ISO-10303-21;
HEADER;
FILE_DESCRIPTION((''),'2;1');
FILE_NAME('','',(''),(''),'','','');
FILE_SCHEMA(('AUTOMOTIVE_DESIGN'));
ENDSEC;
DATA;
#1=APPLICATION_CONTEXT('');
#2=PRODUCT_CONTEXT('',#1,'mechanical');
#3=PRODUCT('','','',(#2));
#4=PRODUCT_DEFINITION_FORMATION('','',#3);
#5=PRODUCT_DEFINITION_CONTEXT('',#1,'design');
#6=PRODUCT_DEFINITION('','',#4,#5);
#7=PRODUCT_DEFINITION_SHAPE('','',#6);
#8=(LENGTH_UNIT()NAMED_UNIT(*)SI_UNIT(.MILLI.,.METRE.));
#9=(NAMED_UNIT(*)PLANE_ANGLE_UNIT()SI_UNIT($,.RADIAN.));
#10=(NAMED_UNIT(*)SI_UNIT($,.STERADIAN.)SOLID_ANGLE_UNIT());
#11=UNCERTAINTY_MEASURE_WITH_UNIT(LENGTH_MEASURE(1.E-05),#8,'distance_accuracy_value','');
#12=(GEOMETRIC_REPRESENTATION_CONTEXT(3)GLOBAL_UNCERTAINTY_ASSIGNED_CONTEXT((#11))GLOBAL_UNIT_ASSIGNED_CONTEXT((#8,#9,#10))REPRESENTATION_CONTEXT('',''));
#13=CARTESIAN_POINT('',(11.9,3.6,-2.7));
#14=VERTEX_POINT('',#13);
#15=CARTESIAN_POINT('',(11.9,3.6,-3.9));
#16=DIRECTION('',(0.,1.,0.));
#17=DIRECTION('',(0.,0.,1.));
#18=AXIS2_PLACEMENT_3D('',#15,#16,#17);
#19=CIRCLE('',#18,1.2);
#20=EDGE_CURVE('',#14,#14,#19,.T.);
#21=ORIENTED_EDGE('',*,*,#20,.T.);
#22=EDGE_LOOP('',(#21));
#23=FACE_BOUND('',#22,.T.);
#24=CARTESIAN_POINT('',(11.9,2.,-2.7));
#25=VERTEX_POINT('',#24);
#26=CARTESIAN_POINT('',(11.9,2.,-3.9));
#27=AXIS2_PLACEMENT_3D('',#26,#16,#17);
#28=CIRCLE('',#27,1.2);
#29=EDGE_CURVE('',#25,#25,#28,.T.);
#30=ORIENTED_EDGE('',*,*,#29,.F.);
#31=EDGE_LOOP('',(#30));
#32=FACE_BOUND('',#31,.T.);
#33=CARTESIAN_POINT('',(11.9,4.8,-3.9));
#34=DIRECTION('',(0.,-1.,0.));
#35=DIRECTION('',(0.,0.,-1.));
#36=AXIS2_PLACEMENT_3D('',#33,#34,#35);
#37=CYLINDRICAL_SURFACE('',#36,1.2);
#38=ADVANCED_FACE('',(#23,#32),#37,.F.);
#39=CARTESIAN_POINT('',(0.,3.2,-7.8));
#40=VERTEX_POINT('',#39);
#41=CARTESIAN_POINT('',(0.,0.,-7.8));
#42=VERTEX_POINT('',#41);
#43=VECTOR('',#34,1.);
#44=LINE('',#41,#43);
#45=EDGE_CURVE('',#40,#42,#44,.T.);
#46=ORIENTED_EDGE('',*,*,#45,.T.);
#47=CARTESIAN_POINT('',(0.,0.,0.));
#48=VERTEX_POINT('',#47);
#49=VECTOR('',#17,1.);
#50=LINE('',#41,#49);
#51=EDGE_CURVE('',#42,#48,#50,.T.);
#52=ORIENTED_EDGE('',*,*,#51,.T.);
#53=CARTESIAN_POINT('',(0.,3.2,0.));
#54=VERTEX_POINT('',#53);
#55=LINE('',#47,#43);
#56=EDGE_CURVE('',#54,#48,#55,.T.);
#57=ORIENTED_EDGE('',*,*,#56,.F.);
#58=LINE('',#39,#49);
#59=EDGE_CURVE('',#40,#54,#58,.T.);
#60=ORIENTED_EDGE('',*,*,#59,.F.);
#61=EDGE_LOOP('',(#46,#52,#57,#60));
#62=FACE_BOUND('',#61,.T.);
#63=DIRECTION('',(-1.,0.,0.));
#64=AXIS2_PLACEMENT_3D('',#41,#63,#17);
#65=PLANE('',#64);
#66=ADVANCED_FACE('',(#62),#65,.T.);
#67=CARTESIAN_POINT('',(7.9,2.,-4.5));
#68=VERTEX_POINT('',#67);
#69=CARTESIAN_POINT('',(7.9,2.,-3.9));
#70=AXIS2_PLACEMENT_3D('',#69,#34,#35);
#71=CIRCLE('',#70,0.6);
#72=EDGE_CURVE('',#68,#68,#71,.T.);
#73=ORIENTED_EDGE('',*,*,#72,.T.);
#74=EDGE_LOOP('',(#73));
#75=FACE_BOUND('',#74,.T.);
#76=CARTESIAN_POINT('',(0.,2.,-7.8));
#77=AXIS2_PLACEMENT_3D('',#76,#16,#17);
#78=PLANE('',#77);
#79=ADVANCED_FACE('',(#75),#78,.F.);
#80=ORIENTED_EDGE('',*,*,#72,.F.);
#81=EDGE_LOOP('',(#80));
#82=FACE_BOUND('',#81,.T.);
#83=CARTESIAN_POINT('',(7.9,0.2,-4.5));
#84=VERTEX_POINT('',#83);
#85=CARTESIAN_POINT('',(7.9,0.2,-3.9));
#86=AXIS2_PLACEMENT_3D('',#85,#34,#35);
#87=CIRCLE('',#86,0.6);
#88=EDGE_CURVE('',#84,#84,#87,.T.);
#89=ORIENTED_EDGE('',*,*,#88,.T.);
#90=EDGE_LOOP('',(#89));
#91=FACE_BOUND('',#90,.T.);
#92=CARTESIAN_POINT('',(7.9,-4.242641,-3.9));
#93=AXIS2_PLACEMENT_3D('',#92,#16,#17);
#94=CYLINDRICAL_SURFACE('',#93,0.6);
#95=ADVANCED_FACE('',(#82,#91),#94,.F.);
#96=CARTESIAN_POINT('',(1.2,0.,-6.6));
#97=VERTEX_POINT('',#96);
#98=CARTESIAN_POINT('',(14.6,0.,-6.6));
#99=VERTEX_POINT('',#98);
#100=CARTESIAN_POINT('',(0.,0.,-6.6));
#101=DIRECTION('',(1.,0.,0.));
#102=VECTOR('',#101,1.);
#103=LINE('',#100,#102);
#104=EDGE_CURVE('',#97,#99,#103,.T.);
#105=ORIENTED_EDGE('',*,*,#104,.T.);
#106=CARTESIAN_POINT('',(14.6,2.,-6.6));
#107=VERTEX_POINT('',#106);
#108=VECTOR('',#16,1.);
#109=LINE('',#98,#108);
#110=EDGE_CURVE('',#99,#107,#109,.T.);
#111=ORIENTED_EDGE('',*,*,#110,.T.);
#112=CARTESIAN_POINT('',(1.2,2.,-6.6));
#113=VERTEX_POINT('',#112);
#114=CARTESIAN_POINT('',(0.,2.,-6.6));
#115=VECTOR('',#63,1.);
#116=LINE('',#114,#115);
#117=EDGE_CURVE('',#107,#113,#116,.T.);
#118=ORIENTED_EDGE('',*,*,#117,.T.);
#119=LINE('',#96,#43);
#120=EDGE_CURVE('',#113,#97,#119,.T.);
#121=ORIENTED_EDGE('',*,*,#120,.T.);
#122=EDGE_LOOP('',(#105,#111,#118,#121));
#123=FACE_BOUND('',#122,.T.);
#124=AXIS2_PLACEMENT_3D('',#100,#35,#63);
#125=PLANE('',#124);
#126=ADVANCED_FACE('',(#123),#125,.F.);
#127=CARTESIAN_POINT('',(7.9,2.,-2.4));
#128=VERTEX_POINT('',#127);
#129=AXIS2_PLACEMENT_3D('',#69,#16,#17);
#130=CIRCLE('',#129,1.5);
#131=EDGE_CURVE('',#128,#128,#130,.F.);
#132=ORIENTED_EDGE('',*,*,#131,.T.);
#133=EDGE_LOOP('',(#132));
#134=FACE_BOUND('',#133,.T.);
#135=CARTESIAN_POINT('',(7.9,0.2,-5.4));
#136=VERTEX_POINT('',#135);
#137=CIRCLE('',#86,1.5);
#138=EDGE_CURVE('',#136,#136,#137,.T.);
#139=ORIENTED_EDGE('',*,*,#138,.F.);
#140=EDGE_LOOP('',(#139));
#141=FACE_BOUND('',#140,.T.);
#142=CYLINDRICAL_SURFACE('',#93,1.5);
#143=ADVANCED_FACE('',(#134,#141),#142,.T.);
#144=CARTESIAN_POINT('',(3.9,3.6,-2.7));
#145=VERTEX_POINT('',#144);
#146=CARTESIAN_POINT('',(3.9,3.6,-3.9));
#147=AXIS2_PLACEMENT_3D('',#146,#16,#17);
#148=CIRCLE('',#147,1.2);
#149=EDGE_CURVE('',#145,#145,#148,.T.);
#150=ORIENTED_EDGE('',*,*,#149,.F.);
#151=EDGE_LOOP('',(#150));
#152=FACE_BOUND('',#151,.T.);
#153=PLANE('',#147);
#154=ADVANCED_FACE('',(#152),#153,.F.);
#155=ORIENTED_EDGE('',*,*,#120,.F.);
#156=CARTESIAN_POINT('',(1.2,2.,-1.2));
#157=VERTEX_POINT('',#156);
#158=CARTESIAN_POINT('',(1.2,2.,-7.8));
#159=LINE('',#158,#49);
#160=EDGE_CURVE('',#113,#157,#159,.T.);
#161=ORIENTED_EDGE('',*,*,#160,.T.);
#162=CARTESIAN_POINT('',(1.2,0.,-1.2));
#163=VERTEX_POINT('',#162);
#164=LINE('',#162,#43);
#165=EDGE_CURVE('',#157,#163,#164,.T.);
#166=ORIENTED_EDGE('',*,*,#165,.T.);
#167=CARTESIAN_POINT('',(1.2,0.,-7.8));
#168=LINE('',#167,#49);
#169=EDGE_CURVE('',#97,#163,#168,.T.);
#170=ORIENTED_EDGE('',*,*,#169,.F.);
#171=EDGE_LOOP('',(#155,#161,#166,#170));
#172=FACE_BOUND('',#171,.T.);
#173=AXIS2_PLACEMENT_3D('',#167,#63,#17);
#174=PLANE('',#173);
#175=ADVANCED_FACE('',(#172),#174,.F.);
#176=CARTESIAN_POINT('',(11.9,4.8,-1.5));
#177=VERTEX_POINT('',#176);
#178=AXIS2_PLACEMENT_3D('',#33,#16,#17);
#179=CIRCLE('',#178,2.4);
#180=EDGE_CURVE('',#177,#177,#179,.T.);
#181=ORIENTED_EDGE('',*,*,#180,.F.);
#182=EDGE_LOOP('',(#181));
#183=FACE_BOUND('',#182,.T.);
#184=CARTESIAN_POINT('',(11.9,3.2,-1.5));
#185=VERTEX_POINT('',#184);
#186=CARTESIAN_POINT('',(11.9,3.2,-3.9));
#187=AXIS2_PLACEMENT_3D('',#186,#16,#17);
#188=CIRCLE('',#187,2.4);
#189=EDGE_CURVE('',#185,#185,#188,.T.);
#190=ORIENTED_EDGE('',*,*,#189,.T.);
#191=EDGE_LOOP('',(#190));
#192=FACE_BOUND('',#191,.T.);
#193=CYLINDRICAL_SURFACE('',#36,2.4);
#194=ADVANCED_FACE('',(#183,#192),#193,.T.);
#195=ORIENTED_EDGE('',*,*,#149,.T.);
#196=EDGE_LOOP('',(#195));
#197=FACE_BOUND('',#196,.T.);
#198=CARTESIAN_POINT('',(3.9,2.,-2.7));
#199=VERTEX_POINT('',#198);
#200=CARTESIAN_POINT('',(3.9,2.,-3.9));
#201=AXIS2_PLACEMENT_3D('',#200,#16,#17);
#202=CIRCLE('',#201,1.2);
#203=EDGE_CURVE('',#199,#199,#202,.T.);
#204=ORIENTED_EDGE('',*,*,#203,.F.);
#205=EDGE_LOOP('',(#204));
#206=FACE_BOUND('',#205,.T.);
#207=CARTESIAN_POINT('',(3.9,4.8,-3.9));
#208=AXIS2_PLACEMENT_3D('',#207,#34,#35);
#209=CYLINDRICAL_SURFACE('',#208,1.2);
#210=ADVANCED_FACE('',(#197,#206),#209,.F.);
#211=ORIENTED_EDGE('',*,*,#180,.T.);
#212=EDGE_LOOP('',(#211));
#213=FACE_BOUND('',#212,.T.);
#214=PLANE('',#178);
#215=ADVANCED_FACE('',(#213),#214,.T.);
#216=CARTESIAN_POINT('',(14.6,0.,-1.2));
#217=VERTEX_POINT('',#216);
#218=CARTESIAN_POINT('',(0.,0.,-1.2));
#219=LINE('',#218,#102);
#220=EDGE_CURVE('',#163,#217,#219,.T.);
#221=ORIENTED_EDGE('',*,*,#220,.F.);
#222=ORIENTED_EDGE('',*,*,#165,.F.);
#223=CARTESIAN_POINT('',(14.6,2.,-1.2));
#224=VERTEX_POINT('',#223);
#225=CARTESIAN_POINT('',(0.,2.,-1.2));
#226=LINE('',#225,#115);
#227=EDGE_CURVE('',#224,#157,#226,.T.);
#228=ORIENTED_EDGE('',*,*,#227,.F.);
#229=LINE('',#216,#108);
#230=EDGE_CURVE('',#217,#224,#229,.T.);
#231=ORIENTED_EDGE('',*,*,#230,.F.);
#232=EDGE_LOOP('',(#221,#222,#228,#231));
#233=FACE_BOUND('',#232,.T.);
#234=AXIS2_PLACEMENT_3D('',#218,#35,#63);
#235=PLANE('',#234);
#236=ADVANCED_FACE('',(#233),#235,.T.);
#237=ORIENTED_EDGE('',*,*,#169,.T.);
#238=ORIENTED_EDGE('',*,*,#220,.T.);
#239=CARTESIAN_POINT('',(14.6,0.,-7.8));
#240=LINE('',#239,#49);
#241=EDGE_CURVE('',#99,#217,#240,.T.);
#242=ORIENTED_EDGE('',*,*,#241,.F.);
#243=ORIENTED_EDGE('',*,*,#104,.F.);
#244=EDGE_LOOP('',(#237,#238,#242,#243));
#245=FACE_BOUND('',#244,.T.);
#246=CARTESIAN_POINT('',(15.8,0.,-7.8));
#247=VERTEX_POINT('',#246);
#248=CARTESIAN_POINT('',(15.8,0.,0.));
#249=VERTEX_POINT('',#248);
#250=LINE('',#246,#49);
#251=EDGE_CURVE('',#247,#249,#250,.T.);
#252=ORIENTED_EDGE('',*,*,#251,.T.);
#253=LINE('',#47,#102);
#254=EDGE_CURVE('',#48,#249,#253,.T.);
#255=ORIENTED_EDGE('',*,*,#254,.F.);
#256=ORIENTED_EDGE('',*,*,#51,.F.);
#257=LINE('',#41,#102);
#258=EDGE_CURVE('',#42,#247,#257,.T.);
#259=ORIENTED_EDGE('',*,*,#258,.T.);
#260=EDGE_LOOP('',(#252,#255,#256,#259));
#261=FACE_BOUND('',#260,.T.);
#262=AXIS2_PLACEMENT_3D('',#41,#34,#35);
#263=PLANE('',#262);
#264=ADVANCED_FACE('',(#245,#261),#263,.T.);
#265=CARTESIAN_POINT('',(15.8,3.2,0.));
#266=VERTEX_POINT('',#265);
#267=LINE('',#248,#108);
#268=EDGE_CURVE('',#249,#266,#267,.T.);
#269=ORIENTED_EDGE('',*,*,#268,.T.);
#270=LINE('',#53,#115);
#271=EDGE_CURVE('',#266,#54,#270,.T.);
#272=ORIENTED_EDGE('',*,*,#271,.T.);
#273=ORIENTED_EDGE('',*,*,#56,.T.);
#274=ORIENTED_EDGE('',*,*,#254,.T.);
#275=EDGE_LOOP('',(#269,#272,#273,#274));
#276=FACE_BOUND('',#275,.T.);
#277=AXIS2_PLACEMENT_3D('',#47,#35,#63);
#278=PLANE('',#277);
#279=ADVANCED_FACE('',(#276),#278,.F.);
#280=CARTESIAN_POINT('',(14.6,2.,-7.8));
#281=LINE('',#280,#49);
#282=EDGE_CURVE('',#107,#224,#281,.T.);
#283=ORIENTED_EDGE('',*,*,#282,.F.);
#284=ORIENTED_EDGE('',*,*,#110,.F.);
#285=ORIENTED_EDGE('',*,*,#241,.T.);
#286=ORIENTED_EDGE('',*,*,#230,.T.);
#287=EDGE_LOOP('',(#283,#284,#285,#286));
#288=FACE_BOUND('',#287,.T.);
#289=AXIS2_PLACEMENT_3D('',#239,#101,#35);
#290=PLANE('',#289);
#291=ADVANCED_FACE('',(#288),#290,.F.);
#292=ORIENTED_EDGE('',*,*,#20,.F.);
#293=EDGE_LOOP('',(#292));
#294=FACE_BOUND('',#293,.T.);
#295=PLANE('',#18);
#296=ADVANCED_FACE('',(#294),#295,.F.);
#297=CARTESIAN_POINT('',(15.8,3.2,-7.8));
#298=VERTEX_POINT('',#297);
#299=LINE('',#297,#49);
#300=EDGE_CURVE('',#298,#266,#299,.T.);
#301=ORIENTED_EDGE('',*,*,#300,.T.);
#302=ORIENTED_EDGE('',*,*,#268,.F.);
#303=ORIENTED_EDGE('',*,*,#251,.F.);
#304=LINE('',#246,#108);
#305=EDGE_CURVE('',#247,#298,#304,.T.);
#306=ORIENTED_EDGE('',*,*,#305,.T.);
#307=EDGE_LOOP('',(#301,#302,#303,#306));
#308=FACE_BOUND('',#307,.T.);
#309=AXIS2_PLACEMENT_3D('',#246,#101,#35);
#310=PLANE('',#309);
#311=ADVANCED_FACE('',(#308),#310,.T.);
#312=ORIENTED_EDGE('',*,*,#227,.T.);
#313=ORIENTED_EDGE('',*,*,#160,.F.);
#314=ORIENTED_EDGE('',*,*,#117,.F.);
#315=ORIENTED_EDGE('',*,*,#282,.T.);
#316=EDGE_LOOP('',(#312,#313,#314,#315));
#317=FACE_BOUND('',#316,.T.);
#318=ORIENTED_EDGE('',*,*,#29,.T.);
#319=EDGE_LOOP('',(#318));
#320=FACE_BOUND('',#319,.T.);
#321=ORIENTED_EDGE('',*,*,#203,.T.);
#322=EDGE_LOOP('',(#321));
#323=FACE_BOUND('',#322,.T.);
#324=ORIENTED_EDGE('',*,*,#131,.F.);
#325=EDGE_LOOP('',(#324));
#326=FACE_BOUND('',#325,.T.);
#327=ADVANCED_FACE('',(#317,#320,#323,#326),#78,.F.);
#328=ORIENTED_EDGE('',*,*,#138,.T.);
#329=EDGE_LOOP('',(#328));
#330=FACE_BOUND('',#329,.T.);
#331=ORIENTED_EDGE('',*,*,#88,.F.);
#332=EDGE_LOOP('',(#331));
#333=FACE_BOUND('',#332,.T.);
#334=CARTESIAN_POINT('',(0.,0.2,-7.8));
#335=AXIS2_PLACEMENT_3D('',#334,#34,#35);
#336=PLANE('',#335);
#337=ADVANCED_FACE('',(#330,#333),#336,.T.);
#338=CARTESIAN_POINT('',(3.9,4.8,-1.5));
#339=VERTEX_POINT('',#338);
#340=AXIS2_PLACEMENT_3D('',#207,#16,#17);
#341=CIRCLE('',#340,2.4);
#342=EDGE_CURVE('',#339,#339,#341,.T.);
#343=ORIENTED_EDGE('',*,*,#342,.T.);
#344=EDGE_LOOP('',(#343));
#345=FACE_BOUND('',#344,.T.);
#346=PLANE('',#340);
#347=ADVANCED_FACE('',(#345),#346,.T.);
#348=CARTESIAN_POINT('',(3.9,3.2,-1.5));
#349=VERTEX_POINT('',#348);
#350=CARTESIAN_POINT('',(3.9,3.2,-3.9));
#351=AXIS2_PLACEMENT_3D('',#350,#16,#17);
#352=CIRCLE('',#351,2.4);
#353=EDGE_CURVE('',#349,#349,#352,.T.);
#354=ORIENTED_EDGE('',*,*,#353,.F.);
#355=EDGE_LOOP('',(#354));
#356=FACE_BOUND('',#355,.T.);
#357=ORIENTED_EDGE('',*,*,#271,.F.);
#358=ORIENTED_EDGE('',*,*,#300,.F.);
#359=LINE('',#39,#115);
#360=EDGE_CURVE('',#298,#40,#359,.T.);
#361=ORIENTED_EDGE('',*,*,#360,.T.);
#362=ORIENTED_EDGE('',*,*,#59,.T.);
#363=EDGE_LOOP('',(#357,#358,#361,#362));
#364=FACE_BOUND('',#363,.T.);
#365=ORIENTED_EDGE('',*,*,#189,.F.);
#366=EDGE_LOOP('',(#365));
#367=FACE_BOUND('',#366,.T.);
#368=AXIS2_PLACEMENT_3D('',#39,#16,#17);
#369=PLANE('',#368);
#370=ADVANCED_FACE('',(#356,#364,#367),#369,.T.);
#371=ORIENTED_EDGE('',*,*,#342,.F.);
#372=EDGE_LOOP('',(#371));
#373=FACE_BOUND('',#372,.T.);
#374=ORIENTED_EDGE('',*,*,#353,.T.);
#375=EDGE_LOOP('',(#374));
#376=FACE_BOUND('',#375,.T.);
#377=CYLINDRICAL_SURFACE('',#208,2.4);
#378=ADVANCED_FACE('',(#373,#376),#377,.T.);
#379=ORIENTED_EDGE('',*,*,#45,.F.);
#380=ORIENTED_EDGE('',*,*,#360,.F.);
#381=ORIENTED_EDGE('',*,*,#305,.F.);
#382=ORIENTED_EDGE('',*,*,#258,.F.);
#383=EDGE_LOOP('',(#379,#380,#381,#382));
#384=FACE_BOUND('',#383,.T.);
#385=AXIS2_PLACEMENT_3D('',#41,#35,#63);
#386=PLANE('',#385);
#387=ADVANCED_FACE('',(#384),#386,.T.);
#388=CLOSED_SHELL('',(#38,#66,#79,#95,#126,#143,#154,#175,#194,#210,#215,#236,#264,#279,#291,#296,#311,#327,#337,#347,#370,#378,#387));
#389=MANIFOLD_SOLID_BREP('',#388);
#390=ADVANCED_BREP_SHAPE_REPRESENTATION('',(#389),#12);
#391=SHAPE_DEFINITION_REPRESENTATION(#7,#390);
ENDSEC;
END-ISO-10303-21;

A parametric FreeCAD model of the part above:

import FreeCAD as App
import Part
import Sketcher
Q = App.Units.Quantity


def faces_at(feature, points):
    """Names of the faces that lie closest to the given points."""
    faces = feature.Shape.Faces
    near = lambda p: min(range(len(faces)), key=lambda i: faces[i].distToShape(Part.Vertex(*p))[0])
    return sorted({f"Face{near(p) + 1}" for p in points})

doc = App.newDocument("Part")
body = doc.addObject("PartDesign::Body", "Body")

# Sketch on XY plane
sketch1 = doc.addObject("Sketcher::SketchObject", "Sketch")
body.addObject(sketch1)
sketch1.AttachmentSupport = (doc.XY_Plane, [""])
sketch1.MapMode = "FlatFace"
sketch1.addGeometry([
    Part.LineSegment(App.Vector(0, 3.2, 0), App.Vector(0, 0, 0)),
    Part.LineSegment(App.Vector(0, 0, 0), App.Vector(15.8, 0, 0)),
    Part.LineSegment(App.Vector(15.8, 0, 0), App.Vector(15.8, 3.2, 0)),
    Part.LineSegment(App.Vector(15.8, 3.2, 0), App.Vector(0, 3.2, 0)),
], False)
sketch1.addConstraint([
    Sketcher.Constraint("Coincident", 0, 2, 1, 1),
    Sketcher.Constraint("Coincident", 1, 2, 2, 1),
    Sketcher.Constraint("Coincident", 2, 2, 3, 1),
    Sketcher.Constraint("Coincident", 3, 2, 0, 1),
    Sketcher.Constraint("Vertical", 0),
    Sketcher.Constraint("Horizontal", 1),
    Sketcher.Constraint("Vertical", 2),
    Sketcher.Constraint("Horizontal", 3),
    Sketcher.Constraint("Coincident", 0, 2, -1, 1),
    Sketcher.Constraint("DistanceX", 1, 1, 1, 2, Q("15.8 mm")),
    Sketcher.Constraint("DistanceY", 0, 2, 0, 1, Q("3.2 mm")),
])
pad1 = doc.addObject("PartDesign::Pad", "Pad")
body.addObject(pad1)
pad1.Profile = sketch1
pad1.Length = 7.8
pad1.Reversed = True

# Sketch on XZ plane
sketch2 = doc.addObject("Sketcher::SketchObject", "Sketch001")
body.addObject(sketch2)
sketch2.AttachmentSupport = (doc.XZ_Plane, [""])
sketch2.MapMode = "FlatFace"
sketch2.AttachmentOffset = App.Placement(App.Vector(0, 0, -3.2), App.Rotation())
sketch2.addGeometry(Part.Circle(App.Vector(3.9, -3.9, 0), App.Vector(0, 0, 1), 2.4), False)
sketch2.addConstraint([
    Sketcher.Constraint("Diameter", 0, Q("4.8 mm")),
    Sketcher.Constraint("DistanceX", -1, 1, 0, 3, Q("3.9 mm")),
    Sketcher.Constraint("DistanceY", 0, 3, -1, 1, Q("3.9 mm")),
])
pad2 = doc.addObject("PartDesign::Pad", "Pad001")
body.addObject(pad2)
pad2.Profile = sketch2
pad2.Length = 1.6
pad2.Reversed = True
doc.recompute()

linearpattern = doc.addObject("PartDesign::LinearPattern", "LinearPattern")
body.addObject(linearpattern)
linearpattern.Originals = [pad2]
linearpattern.Direction = (doc.X_Axis, [""])
linearpattern.Mode = "offset"
linearpattern.Offset = 8
linearpattern.Occurrences = 2
body.Tip = linearpattern
doc.recompute()

thickness = doc.addObject("PartDesign::Thickness", "Thickness")
body.addObject(thickness)
thickness.Base = (linearpattern, faces_at(linearpattern, [(7.9, 0, -3.9)]))
thickness.Value = 1.2
thickness.Reversed = True
thickness.Join = "Intersection"

# Sketch on XZ plane
sketch3 = doc.addObject("Sketcher::SketchObject", "Sketch002")
body.addObject(sketch3)
sketch3.AttachmentSupport = (doc.XZ_Plane, [""])
sketch3.MapMode = "FlatFace"
sketch3.AttachmentOffset = App.Placement(App.Vector(0, 0, -2), App.Rotation())
sketch3.addGeometry([
    Part.Circle(App.Vector(7.9, -3.9, 0), App.Vector(0, 0, 1), 1.5),
    Part.Circle(App.Vector(7.9, -3.9, 0), App.Vector(0, 0, 1), 0.6),
], False)
sketch3.addConstraint([
    Sketcher.Constraint("Coincident", 1, 3, 0, 3),
    Sketcher.Constraint("Diameter", 0, Q("3 mm")),
    Sketcher.Constraint("Diameter", 1, Q("1.2 mm")),
    Sketcher.Constraint("DistanceX", -1, 1, 0, 3, Q("7.9 mm")),
    Sketcher.Constraint("DistanceY", 0, 3, -1, 1, Q("3.9 mm")),
])
pad3 = doc.addObject("PartDesign::Pad", "Pad002")
body.addObject(pad3)
pad3.Profile = sketch3
pad3.Length = 1.8

doc.recompute()
